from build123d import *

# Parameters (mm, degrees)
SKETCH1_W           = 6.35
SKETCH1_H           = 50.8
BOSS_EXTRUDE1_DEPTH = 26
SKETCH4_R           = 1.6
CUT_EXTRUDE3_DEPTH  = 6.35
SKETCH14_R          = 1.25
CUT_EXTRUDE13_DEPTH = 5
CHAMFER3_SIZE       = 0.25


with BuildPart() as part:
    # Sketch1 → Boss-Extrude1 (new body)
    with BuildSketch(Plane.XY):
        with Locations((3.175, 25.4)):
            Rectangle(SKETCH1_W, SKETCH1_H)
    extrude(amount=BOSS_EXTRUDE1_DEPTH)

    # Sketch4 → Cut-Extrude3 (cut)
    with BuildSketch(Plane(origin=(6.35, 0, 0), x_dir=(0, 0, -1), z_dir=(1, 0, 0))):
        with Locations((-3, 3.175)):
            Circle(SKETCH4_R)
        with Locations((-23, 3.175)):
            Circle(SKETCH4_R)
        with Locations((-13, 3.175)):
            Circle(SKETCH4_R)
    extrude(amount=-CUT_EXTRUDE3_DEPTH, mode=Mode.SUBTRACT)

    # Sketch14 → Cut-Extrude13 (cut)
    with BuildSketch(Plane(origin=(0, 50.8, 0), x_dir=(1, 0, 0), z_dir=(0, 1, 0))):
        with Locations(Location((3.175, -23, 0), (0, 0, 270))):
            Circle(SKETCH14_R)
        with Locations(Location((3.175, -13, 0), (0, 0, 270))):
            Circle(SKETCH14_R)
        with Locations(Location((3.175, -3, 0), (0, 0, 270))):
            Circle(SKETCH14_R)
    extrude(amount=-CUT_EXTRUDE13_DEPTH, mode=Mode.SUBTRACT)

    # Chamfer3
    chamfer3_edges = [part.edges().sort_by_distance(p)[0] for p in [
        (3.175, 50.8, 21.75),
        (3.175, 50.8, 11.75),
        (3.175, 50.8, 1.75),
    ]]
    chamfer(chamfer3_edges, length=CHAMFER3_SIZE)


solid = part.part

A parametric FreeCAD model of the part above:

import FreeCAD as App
import Part
import Sketcher

V = App.Vector


def edges_at(feature, points):
    """Names of the edges that pass closest to the given points."""
    edges = feature.Shape.Edges
    near = lambda p: min(range(len(edges)), key=lambda i: edges[i].distToShape(Part.Vertex(*p))[0])
    return sorted({f"Edge{near(p) + 1}" for p in points})

doc = App.newDocument("Part")
body = doc.addObject("PartDesign::Body", "Body")

# Sketch on XY plane
sketch1 = body.newObject("Sketcher::SketchObject", "Sketch")
sketch1.AttachmentSupport = (doc.getObject("XY_Plane"), [""])
sketch1.MapMode = "FlatFace"
sketch1.addGeometry(Part.LineSegment(V(0, 51, 0), V(0, 0, 0)), False)
sketch1.addGeometry(Part.LineSegment(V(0, 0, 0), V(6, 0, 0)), False)
sketch1.addGeometry(Part.LineSegment(V(6, 0, 0), V(6, 51, 0)), False)
sketch1.addGeometry(Part.LineSegment(V(6, 51, 0), V(0, 51, 0)), False)
sketch1.addConstraint(Sketcher.Constraint("Coincident", 0, 2, 1, 1))
sketch1.addConstraint(Sketcher.Constraint("Coincident", 1, 2, 2, 1))
sketch1.addConstraint(Sketcher.Constraint("Coincident", 2, 2, 3, 1))
sketch1.addConstraint(Sketcher.Constraint("Coincident", 3, 2, 0, 1))
sketch1.addConstraint(Sketcher.Constraint("Vertical", 0))
sketch1.addConstraint(Sketcher.Constraint("Horizontal", 1))
sketch1.addConstraint(Sketcher.Constraint("Vertical", 2))
sketch1.addConstraint(Sketcher.Constraint("Horizontal", 3))
sketch1.addConstraint(Sketcher.Constraint("Coincident", 0, 2, -1, 1))
sketch1.addConstraint(Sketcher.Constraint("DistanceY", 0, 2, 0, 1, 50.8))
sketch1.addConstraint(Sketcher.Constraint("DistanceX", 1, 1, 1, 2, 6.35))
pad1 = body.newObject("PartDesign::Pad", "Pad")
pad1.Profile = sketch1
pad1.Length = 26

# Sketch on YZ plane
sketch2 = body.newObject("Sketcher::SketchObject", "Sketch001")
sketch2.AttachmentSupport = (doc.getObject("YZ_Plane"), [""])
sketch2.MapMode = "FlatFace"
sketch2.AttachmentOffset = App.Placement(V(0, 0, 6.35), App.Rotation())
sketch2.addGeometry(Part.Circle(V(3.2, 3, 0), V(0, 0, 1), 1.6), False)
sketch2.addGeometry(Part.Circle(V(3.2, 23, 0), V(0, 0, 1), 1.6), False)
sketch2.addGeometry(Part.Circle(V(3.2, 13, 0), V(0, 0, 1), 1.6), False)
sketch2.addConstraint(Sketcher.Constraint("Equal", 0, 1))
sketch2.addConstraint(Sketcher.Constraint("Equal", 1, 2))
sketch2.addConstraint(Sketcher.Constraint("Vertical", 0, 3, 1, 3))
sketch2.addConstraint(Sketcher.Constraint("Vertical", 1, 3, 2, 3))
sketch2.addConstraint(Sketcher.Constraint("Diameter", 0, 3.2))
sketch2.addConstraint(Sketcher.Constraint("DistanceY", -1, 1, 0, 3, 3.0))
sketch2.addConstraint(Sketcher.Constraint("DistanceY", -1, 1, 1, 3, 23.0))
sketch2.addConstraint(Sketcher.Constraint("DistanceY", -1, 1, 2, 3, 13.0))
sketch2.addConstraint(Sketcher.Constraint("DistanceX", -1, 1, 0, 3, 3.175))
pocket1 = body.newObject("PartDesign::Pocket", "Pocket")
pocket1.Profile = sketch2
pocket1.Length = 6.35

# Sketch on XZ plane
sketch3 = body.newObject("Sketcher::SketchObject", "Sketch002")
sketch3.AttachmentSupport = (doc.getObject("XZ_Plane"), [""])
sketch3.MapMode = "FlatFace"
sketch3.AttachmentOffset = App.Placement(V(0, 0, -50.8), App.Rotation())
sketch3.addGeometry(Part.Circle(V(3.2, 23, 0), V(0, 0, 1), 1.2), False)
sketch3.addGeometry(Part.Circle(V(3.2, 13, 0), V(0, 0, 1), 1.2), False)
sketch3.addGeometry(Part.Circle(V(3.2, 3, 0), V(0, 0, 1), 1.2), False)
sketch3.addConstraint(Sketcher.Constraint("Equal", 0, 1))
sketch3.addConstraint(Sketcher.Constraint("Equal", 1, 2))
sketch3.addConstraint(Sketcher.Constraint("Vertical", 0, 3, 1, 3))
sketch3.addConstraint(Sketcher.Constraint("Vertical", 1, 3, 2, 3))
sketch3.addConstraint(Sketcher.Constraint("Diameter", 0, 2.5))
sketch3.addConstraint(Sketcher.Constraint("DistanceY", -1, 1, 0, 3, 23.0))
sketch3.addConstraint(Sketcher.Constraint("DistanceY", -1, 1, 1, 3, 13.0))
sketch3.addConstraint(Sketcher.Constraint("DistanceY", -1, 1, 2, 3, 3.0))
sketch3.addConstraint(Sketcher.Constraint("DistanceX", -1, 1, 0, 3, 3.175))
pocket2 = body.newObject("PartDesign::Pocket", "Pocket001")
pocket2.Profile = sketch3
pocket2.Length = 5
pocket2.Reversed = True
doc.recompute()

chamfer = body.newObject("PartDesign::Chamfer", "Chamfer")
chamfer.Base = (pocket2, edges_at(pocket2, [(3.175, 50.8, 21.75), (3.175, 50.8, 11.75), (3.175, 50.8, 1.75)]))
chamfer.Size = 0.25

doc.recompute()
